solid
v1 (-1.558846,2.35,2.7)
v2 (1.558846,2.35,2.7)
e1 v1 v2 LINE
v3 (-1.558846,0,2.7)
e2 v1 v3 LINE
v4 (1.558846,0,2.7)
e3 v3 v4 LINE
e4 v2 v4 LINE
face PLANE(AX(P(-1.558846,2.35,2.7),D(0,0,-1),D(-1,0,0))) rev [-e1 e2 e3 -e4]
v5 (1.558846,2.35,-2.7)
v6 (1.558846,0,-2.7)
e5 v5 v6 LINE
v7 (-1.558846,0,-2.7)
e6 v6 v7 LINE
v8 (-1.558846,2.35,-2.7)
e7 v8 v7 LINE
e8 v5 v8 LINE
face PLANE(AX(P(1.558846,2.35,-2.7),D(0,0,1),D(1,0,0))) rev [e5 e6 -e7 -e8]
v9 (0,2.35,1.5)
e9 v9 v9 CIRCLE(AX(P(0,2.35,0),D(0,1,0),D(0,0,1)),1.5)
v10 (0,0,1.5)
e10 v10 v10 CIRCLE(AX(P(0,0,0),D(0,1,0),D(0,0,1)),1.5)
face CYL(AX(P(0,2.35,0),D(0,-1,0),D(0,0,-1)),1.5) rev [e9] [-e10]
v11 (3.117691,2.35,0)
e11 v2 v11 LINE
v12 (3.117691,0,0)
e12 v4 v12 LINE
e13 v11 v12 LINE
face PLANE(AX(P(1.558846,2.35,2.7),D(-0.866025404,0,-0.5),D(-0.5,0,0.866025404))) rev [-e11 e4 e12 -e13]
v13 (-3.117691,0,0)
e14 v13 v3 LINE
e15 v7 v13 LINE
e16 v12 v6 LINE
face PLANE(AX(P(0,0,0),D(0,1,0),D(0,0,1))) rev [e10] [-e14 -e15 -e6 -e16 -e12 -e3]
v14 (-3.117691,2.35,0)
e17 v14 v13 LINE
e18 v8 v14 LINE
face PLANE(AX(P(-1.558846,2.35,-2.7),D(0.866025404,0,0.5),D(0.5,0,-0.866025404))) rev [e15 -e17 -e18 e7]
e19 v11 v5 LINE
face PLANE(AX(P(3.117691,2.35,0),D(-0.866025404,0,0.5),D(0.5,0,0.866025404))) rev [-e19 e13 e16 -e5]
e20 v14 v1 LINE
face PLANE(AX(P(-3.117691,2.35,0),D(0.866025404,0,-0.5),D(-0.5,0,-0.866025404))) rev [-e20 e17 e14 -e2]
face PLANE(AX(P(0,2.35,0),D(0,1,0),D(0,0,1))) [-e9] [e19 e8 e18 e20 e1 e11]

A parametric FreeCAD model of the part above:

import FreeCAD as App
import Part
import Sketcher
from FreeCAD import Vector
Q = App.Units.Quantity


def add_polygon(sketch, points):
    """Adds a closed chain of lines whose ends are joined by coincident constraints."""
    first, n = sketch.GeometryCount, len(points)
    for a, b in zip(points, points[1:] + points[:1]):
        sketch.addGeometry(Part.LineSegment(App.Vector(*a, 0), App.Vector(*b, 0)), False)
    for i in range(n):
        sketch.addConstraint(Sketcher.Constraint("Coincident", first + i, 2, first + (i + 1) % n, 1))

doc = App.newDocument("Part")
body = doc.addObject("PartDesign::Body", "Body")

# Sketch on XZ plane
sketch1 = body.newObject("Sketcher::SketchObject", "Sketch")
sketch1.AttachmentSupport = (doc.getObject("XZ_Plane"), [""])
sketch1.MapMode = "FlatFace"
add_polygon(sketch1, [(1.558846, 2.7), (3.117691, 0), (1.558846, -2.7), (-1.558846, -2.7), (-3.117691, 0), (-1.558846, 2.7)])  # lines 0-5
sketch1.addGeometry(Part.Circle(Vector(0, 0, 0), Vector(0, 0, 1), 1.5), False)  # 6
sketch1.addConstraint(Sketcher.Constraint("Horizontal", 2))
sketch1.addConstraint(Sketcher.Constraint("Horizontal", 5))
sketch1.addConstraint(Sketcher.Constraint("Coincident", 6, 3, -1, 1))
sketch1.addConstraint(Sketcher.Constraint("Symmetric", 0, 2, 3, 2, -1, 1))
sketch1.addConstraint(Sketcher.Constraint("Symmetric", 1, 2, 4, 2, -1, 1))
sketch1.addConstraint(Sketcher.Constraint("PointOnObject", 0, 2, -1))
sketch1.addConstraint(Sketcher.Constraint("Parallel", 0, 3))
sketch1.addConstraint(Sketcher.Constraint("Vertical", 2, 2, 4, 2))
sketch1.addConstraint(Sketcher.Constraint("Diameter", 6, Q("3 mm")))
sketch1.addConstraint(Sketcher.Constraint("Angle", 0, Q("-60 deg")))
sketch1.addConstraint(Sketcher.Constraint("DistanceY", 1, 2, -1, 1, Q("2.7 mm")))
sketch1.addConstraint(Sketcher.Constraint("DistanceX", 2, 2, 2, 1, Q("3.117691 mm")))
pad1 = body.newObject("PartDesign::Pad", "Pad")
pad1.Profile = sketch1
pad1.Length = 2.35
pad1.Reversed = True

doc.recompute()
